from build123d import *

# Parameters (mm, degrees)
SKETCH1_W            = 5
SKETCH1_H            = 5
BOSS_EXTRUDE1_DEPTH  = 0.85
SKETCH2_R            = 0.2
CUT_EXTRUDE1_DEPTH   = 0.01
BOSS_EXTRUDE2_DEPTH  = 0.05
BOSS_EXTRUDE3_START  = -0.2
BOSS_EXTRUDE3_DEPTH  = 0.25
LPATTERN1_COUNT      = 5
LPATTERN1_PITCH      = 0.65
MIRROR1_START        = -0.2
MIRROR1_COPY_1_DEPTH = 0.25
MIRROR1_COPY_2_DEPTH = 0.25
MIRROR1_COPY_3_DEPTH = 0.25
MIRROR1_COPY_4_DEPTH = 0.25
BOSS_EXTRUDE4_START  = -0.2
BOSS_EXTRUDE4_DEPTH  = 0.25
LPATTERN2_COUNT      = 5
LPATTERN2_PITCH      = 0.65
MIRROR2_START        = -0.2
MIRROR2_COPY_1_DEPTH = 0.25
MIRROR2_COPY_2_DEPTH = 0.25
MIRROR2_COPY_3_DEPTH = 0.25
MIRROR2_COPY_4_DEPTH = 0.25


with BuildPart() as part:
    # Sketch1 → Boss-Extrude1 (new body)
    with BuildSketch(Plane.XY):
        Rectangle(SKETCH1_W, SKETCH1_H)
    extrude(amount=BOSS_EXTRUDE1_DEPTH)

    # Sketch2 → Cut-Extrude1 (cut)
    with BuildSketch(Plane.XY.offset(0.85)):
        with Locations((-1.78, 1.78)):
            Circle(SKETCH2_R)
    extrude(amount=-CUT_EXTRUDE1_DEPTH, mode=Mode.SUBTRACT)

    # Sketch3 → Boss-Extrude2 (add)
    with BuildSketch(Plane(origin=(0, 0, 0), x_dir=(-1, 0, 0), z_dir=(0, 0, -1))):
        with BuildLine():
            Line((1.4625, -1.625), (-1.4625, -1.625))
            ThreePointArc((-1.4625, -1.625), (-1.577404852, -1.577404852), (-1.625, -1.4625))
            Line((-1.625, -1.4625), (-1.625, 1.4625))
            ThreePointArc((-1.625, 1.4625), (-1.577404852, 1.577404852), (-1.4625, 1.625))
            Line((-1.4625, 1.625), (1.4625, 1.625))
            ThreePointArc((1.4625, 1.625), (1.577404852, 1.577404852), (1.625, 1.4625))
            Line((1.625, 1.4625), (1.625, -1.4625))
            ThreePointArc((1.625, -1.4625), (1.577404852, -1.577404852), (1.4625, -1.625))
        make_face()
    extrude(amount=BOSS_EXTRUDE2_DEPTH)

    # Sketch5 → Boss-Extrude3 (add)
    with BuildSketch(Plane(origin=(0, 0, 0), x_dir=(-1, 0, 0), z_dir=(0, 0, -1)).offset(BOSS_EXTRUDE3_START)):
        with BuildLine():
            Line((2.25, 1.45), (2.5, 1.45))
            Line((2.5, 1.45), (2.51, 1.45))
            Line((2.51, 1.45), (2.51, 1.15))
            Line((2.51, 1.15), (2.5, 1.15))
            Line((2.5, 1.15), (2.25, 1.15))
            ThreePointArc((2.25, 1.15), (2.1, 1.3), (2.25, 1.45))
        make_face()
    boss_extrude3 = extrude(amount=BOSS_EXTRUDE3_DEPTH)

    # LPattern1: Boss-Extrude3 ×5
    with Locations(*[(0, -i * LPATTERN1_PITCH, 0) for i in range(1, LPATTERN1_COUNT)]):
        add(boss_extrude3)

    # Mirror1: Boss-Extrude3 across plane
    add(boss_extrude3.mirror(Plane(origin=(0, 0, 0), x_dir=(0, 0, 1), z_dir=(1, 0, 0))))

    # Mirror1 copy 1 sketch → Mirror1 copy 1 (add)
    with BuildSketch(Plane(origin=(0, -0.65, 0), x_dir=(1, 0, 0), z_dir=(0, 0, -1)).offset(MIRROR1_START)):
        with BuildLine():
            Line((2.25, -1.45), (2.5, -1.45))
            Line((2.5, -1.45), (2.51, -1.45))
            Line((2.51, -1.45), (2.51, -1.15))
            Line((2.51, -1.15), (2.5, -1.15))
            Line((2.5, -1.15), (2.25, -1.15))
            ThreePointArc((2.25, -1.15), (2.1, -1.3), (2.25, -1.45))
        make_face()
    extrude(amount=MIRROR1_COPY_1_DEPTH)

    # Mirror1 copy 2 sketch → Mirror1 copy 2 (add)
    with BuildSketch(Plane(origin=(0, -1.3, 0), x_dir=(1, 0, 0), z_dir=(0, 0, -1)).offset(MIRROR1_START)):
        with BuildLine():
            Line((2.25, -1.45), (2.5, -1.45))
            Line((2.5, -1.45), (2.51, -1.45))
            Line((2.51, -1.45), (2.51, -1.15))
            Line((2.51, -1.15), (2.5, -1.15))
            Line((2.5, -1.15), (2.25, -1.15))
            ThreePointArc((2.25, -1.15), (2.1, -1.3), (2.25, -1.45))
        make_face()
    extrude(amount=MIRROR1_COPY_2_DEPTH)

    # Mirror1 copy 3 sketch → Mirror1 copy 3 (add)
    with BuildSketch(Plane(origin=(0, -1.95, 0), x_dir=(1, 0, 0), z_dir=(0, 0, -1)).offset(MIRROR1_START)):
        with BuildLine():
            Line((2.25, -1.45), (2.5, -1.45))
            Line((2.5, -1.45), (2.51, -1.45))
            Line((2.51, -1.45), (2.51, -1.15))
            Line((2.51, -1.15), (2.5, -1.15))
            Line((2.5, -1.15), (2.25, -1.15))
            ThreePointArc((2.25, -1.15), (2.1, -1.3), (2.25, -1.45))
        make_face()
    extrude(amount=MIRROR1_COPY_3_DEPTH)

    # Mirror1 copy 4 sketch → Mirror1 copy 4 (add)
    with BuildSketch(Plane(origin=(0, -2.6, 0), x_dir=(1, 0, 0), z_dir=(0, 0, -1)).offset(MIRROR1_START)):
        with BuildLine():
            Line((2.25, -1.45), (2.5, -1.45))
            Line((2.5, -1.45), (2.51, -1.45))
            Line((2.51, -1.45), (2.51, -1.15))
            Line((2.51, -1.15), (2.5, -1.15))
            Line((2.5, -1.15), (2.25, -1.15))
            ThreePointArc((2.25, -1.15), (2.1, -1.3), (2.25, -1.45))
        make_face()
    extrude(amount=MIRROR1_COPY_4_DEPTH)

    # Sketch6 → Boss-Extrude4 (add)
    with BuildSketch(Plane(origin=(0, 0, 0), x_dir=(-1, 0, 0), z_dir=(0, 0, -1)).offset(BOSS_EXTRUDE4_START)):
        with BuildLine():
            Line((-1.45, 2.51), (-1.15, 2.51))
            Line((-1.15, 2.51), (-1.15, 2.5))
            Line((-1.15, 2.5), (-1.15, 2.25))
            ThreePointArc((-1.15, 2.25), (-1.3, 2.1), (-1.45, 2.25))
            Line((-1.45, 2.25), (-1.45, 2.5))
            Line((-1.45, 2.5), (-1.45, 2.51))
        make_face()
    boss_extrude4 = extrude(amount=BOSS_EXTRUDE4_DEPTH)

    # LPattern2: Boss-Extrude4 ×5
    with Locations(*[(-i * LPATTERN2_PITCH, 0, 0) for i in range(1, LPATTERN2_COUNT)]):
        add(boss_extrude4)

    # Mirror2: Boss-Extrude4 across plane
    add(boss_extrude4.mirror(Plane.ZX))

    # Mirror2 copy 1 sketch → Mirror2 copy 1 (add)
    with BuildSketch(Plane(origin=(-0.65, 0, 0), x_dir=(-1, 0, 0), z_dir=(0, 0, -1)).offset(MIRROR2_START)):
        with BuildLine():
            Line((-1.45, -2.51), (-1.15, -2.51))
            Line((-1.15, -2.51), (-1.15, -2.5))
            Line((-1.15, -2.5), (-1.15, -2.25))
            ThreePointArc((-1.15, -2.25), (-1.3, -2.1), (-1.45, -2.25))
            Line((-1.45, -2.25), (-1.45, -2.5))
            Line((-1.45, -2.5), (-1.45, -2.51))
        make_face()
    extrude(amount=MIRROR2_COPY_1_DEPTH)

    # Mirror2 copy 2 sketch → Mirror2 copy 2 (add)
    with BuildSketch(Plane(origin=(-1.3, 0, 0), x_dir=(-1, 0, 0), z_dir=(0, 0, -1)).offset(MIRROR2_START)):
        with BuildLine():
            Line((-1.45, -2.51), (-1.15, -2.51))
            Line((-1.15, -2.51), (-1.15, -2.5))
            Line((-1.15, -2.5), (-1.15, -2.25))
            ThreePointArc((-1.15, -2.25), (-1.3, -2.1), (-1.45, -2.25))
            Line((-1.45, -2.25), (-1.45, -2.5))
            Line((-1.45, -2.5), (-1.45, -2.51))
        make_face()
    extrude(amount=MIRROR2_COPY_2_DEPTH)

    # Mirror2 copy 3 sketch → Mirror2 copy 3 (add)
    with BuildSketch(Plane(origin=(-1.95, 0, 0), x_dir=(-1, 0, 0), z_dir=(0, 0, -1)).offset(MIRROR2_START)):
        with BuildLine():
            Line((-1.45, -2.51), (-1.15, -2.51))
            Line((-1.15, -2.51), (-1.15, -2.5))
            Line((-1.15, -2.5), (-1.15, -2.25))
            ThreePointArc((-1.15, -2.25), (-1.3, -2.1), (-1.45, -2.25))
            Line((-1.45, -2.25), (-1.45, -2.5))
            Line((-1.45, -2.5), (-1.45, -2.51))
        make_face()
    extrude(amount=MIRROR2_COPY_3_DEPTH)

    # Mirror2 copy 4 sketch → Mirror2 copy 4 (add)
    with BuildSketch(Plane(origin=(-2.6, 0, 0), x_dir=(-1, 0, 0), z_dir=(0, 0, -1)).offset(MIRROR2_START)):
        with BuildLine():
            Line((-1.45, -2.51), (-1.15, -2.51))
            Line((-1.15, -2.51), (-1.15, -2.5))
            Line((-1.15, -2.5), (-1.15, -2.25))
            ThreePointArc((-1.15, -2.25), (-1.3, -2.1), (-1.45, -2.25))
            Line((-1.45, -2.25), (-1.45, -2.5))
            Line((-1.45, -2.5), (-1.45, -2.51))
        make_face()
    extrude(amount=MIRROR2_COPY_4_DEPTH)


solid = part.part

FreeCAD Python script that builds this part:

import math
import FreeCAD as App
import Part
import Sketcher


def add_polygon(sketch, points):
    """Adds a closed chain of lines whose ends are joined by coincident constraints."""
    first, n = sketch.GeometryCount, len(points)
    for a, b in zip(points, points[1:] + points[:1]):
        sketch.addGeometry(Part.LineSegment(App.Vector(*a, 0), App.Vector(*b, 0)), False)
    for i in range(n):
        sketch.addConstraint(Sketcher.Constraint("Coincident", first + i, 2, first + (i + 1) % n, 1))

doc = App.newDocument("Part")
body = doc.addObject("PartDesign::Body", "Body")

# Sketch on XY plane
sketch1 = body.newObject("Sketcher::SketchObject", "Sketch")
sketch1.AttachmentSupport = (doc.getObject("XY_Plane"), [""])
sketch1.MapMode = "FlatFace"
add_polygon(sketch1, [(-2, 2), (-2, -2), (2, -2), (2, 2)])  # lines 0-3
sketch1.addConstraint(Sketcher.Constraint("Vertical", 0))
sketch1.addConstraint(Sketcher.Constraint("Horizontal", 1))
sketch1.addConstraint(Sketcher.Constraint("Vertical", 2))
sketch1.addConstraint(Sketcher.Constraint("Horizontal", 3))
sketch1.addConstraint(Sketcher.Constraint("Symmetric", 0, 2, 2, 2, -1, 1))
sketch1.addConstraint(Sketcher.Constraint("Equal", 3, 0))
sketch1.addConstraint(Sketcher.Constraint("DistanceX", 1, 1, 1, 2, 5.0))
pad1 = body.newObject("PartDesign::Pad", "Pad")
pad1.Profile = sketch1
pad1.Length = 0.85

# Sketch on XY plane
sketch2 = body.newObject("Sketcher::SketchObject", "Sketch001")
sketch2.AttachmentSupport = (doc.getObject("XY_Plane"), [""])
sketch2.MapMode = "FlatFace"
sketch2.AttachmentOffset = App.Placement(App.Vector(0, 0, 0.85), App.Rotation())
sketch2.addGeometry(Part.Circle(App.Vector(-1.78, 1.78, 0), App.Vector(0, 0, 1), 0.2), False)
sketch2.addConstraint(Sketcher.Constraint("Diameter", 0, 0.4))
sketch2.addConstraint(Sketcher.Constraint("DistanceX", 0, 3, -1, 1, 1.78))
sketch2.addConstraint(Sketcher.Constraint("DistanceY", -1, 1, 0, 3, 1.78))
pocket1 = body.newObject("PartDesign::Pocket", "Pocket")
pocket1.Profile = sketch2
pocket1.Length = 0.01

# Sketch on XY plane
sketch3 = body.newObject("Sketcher::SketchObject", "Sketch002")
sketch3.AttachmentSupport = (doc.getObject("XY_Plane"), [""])
sketch3.MapMode = "FlatFace"
sketch3.addGeometry(Part.LineSegment(App.Vector(1.46, -1.62, 0), App.Vector(-1.46, -1.62, 0)), False)
sketch3.addGeometry(Part.ArcOfCircle(Part.Circle(App.Vector(-1.46, -1.46, 0), App.Vector(0, 0, 1), 0.16), math.radians(180), math.radians(270)), False)
sketch3.addGeometry(Part.LineSegment(App.Vector(-1.62, -1.46, 0), App.Vector(-1.62, 1.46, 0)), False)
sketch3.addGeometry(Part.ArcOfCircle(Part.Circle(App.Vector(-1.46, 1.46, 0), App.Vector(0, 0, 1), 0.16), math.radians(90), math.radians(180)), False)
sketch3.addGeometry(Part.LineSegment(App.Vector(-1.46, 1.62, 0), App.Vector(1.46, 1.62, 0)), False)
sketch3.addGeometry(Part.ArcOfCircle(Part.Circle(App.Vector(1.46, 1.46, 0), App.Vector(0, 0, 1), 0.16), math.radians(0), math.radians(90)), False)
sketch3.addGeometry(Part.LineSegment(App.Vector(1.62, 1.46, 0), App.Vector(1.62, -1.46, 0)), False)
sketch3.addGeometry(Part.ArcOfCircle(Part.Circle(App.Vector(1.46, -1.46, 0), App.Vector(0, 0, 1), 0.16), math.radians(-90), math.radians(0)), False)
sketch3.addConstraint(Sketcher.Constraint("Tangent", 0, 2, 1, 2))
sketch3.addConstraint(Sketcher.Constraint("Tangent", 1, 1, 2, 1))
sketch3.addConstraint(Sketcher.Constraint("Tangent", 2, 2, 3, 2))
sketch3.addConstraint(Sketcher.Constraint("Tangent", 3, 1, 4, 1))
sketch3.addConstraint(Sketcher.Constraint("Tangent", 4, 2, 5, 2))
sketch3.addConstraint(Sketcher.Constraint("Tangent", 5, 1, 6, 1))
sketch3.addConstraint(Sketcher.Constraint("Tangent", 6, 2, 7, 2))
sketch3.addConstraint(Sketcher.Constraint("Tangent", 7, 1, 0, 1))
sketch3.addConstraint(Sketcher.Constraint("Horizontal", 0))
sketch3.addConstraint(Sketcher.Constraint("Vertical", 2))
sketch3.addConstraint(Sketcher.Constraint("Horizontal", 4))
sketch3.addConstraint(Sketcher.Constraint("Vertical", 6))
sketch3.addConstraint(Sketcher.Constraint("Equal", 1, 3))
sketch3.addConstraint(Sketcher.Constraint("Equal", 3, 5))
sketch3.addConstraint(Sketcher.Constraint("Equal", 5, 7))
sketch3.addConstraint(Sketcher.Constraint("Symmetric", 1, 3, 5, 3, -1, 1))
sketch3.addConstraint(Sketcher.Constraint("Equal", 4, 2))
sketch3.addConstraint(Sketcher.Constraint("Radius", 1, 0.1625))
sketch3.addConstraint(Sketcher.Constraint("DistanceX", 0, 2, 0, 1, 2.925))
pad2 = body.newObject("PartDesign::Pad", "Pad001")
pad2.Profile = sketch3
pad2.Length = 0.05
pad2.Reversed = True

# Sketch on XY plane
sketch4 = body.newObject("Sketcher::SketchObject", "Sketch003")
sketch4.AttachmentSupport = (doc.getObject("XY_Plane"), [""])
sketch4.MapMode = "FlatFace"
sketch4.AttachmentOffset = App.Placement(App.Vector(0, 0, 0.2), App.Rotation())
sketch4.addGeometry(Part.LineSegment(App.Vector(-2.51, 1.45, 0), App.Vector(-2.25, 1.45, 0)), False)
sketch4.addGeometry(Part.ArcOfCircle(Part.Circle(App.Vector(-2.25, 1.3, 0), App.Vector(0, 0, 1), 0.15), math.radians(-90), math.radians(90)), False)
sketch4.addGeometry(Part.LineSegment(App.Vector(-2.25, 1.15, 0), App.Vector(-2.51, 1.15, 0)), False)
sketch4.addGeometry(Part.LineSegment(App.Vector(-2.51, 1.15, 0), App.Vector(-2.51, 1.45, 0)), False)
sketch4.addConstraint(Sketcher.Constraint("Tangent", 0, 2, 1, 2))
sketch4.addConstraint(Sketcher.Constraint("Tangent", 1, 1, 2, 1))
sketch4.addConstraint(Sketcher.Constraint("Coincident", 2, 2, 3, 1))
sketch4.addConstraint(Sketcher.Constraint("Coincident", 3, 2, 0, 1))
sketch4.addConstraint(Sketcher.Constraint("Horizontal", 0))
sketch4.addConstraint(Sketcher.Constraint("Horizontal", 2))
sketch4.addConstraint(Sketcher.Constraint("Vertical", 3))
sketch4.addConstraint(Sketcher.Constraint("Radius", 1, 0.15))
sketch4.addConstraint(Sketcher.Constraint("DistanceX", 0, 1, 0, 2, 0.26))
sketch4.addConstraint(Sketcher.Constraint("DistanceY", -1, 1, 1, 3, 1.3))
sketch4.addConstraint(Sketcher.Constraint("DistanceX", 1, 3, -1, 1, 2.25))
pad3 = body.newObject("PartDesign::Pad", "Pad002")
pad3.Profile = sketch4
pad3.Length = 0.25
pad3.Reversed = True
doc.recompute()

linearpattern = body.newObject("PartDesign::LinearPattern", "LinearPattern")
linearpattern.Originals = [pad3]
linearpattern.Direction = (doc.getObject("Y_Axis"), [""])
linearpattern.Mode = "offset"
linearpattern.Offset = 0.65
linearpattern.Occurrences = 5
linearpattern.Reversed = True
body.Tip = linearpattern
doc.recompute()

mirrored = body.newObject("PartDesign::Mirrored", "Mirrored")
mirrored.Originals = [pad3]
mirrored.MirrorPlane = (doc.getObject("YZ_Plane"), [""])
body.Tip = mirrored

# Sketch on XY plane
sketch5 = body.newObject("Sketcher::SketchObject", "Sketch004")
sketch5.AttachmentSupport = (doc.getObject("XY_Plane"), [""])
sketch5.MapMode = "FlatFace"
sketch5.AttachmentOffset = App.Placement(App.Vector(0, 0, 0.2), App.Rotation())
sketch5.addGeometry(Part.LineSegment(App.Vector(2.25, 0.8, 0), App.Vector(2.51, 0.8, 0)), False)
sketch5.addGeometry(Part.LineSegment(App.Vector(2.51, 0.8, 0), App.Vector(2.51, 0.5, 0)), False)
sketch5.addGeometry(Part.LineSegment(App.Vector(2.51, 0.5, 0), App.Vector(2.25, 0.5, 0)), False)
sketch5.addGeometry(Part.ArcOfCircle(Part.Circle(App.Vector(2.25, 0.65, 0), App.Vector(0, 0, 1), 0.15), math.radians(90), math.radians(270)), False)
sketch5.addConstraint(Sketcher.Constraint("Coincident", 0, 2, 1, 1))
sketch5.addConstraint(Sketcher.Constraint("Coincident", 1, 2, 2, 1))
sketch5.addConstraint(Sketcher.Constraint("Tangent", 2, 2, 3, 2))
sketch5.addConstraint(Sketcher.Constraint("Tangent", 3, 1, 0, 1))
sketch5.addConstraint(Sketcher.Constraint("Horizontal", 0))
sketch5.addConstraint(Sketcher.Constraint("Vertical", 1))
sketch5.addConstraint(Sketcher.Constraint("Horizontal", 2))
sketch5.addConstraint(Sketcher.Constraint("Radius", 3, 0.15))
sketch5.addConstraint(Sketcher.Constraint("DistanceX", 0, 1, 0, 2, 0.26))
sketch5.addConstraint(Sketcher.Constraint("DistanceY", -1, 1, 0, 2, 0.8))
sketch5.addConstraint(Sketcher.Constraint("DistanceX", -1, 1, 3, 3, 2.25))
pad4 = body.newObject("PartDesign::Pad", "Pad003")
pad4.Profile = sketch5
pad4.Length = 0.25
pad4.Reversed = True

# Sketch on XY plane
sketch6 = body.newObject("Sketcher::SketchObject", "Sketch005")
sketch6.AttachmentSupport = (doc.getObject("XY_Plane"), [""])
sketch6.MapMode = "FlatFace"
sketch6.AttachmentOffset = App.Placement(App.Vector(0, 0, 0.2), App.Rotation())
sketch6.addGeometry(Part.LineSegment(App.Vector(2.25, 0.15, 0), App.Vector(2.51, 0.15, 0)), False)
sketch6.addGeometry(Part.LineSegment(App.Vector(2.51, 0.15, 0), App.Vector(2.51, -0.15, 0)), False)
sketch6.addGeometry(Part.LineSegment(App.Vector(2.51, -0.15, 0), App.Vector(2.25, -0.15, 0)), False)
sketch6.addGeometry(Part.ArcOfCircle(Part.Circle(App.Vector(2.25, 0, 0), App.Vector(0, 0, 1), 0.15), math.radians(90), math.radians(270)), False)
sketch6.addConstraint(Sketcher.Constraint("Coincident", 0, 2, 1, 1))
sketch6.addConstraint(Sketcher.Constraint("Coincident", 1, 2, 2, 1))
sketch6.addConstraint(Sketcher.Constraint("Tangent", 2, 2, 3, 2))
sketch6.addConstraint(Sketcher.Constraint("Tangent", 3, 1, 0, 1))
sketch6.addConstraint(Sketcher.Constraint("Horizontal", 0))
sketch6.addConstraint(Sketcher.Constraint("Vertical", 1))
sketch6.addConstraint(Sketcher.Constraint("Horizontal", 2))
sketch6.addConstraint(Sketcher.Constraint("PointOnObject", 3, 3, -1))
sketch6.addConstraint(Sketcher.Constraint("Radius", 3, 0.15))
sketch6.addConstraint(Sketcher.Constraint("DistanceX", 0, 1, 0, 2, 0.26))
sketch6.addConstraint(Sketcher.Constraint("DistanceX", -1, 1, 3, 3, 2.25))
pad5 = body.newObject("PartDesign::Pad", "Pad004")
pad5.Profile = sketch6
pad5.Length = 0.25
pad5.Reversed = True

# Sketch on XY plane
sketch7 = body.newObject("Sketcher::SketchObject", "Sketch006")
sketch7.AttachmentSupport = (doc.getObject("XY_Plane"), [""])
sketch7.MapMode = "FlatFace"
sketch7.AttachmentOffset = App.Placement(App.Vector(0, 0, 0.2), App.Rotation())
sketch7.addGeometry(Part.LineSegment(App.Vector(2.25, -0.5, 0), App.Vector(2.51, -0.5, 0)), False)
sketch7.addGeometry(Part.LineSegment(App.Vector(2.51, -0.5, 0), App.Vector(2.51, -0.8, 0)), False)
sketch7.addGeometry(Part.LineSegment(App.Vector(2.51, -0.8, 0), App.Vector(2.25, -0.8, 0)), False)
sketch7.addGeometry(Part.ArcOfCircle(Part.Circle(App.Vector(2.25, -0.65, 0), App.Vector(0, 0, 1), 0.15), math.radians(90), math.radians(270)), False)
sketch7.addConstraint(Sketcher.Constraint("Coincident", 0, 2, 1, 1))
sketch7.addConstraint(Sketcher.Constraint("Coincident", 1, 2, 2, 1))
sketch7.addConstraint(Sketcher.Constraint("Tangent", 2, 2, 3, 2))
sketch7.addConstraint(Sketcher.Constraint("Tangent", 3, 1, 0, 1))
sketch7.addConstraint(Sketcher.Constraint("Horizontal", 0))
sketch7.addConstraint(Sketcher.Constraint("Vertical", 1))
sketch7.addConstraint(Sketcher.Constraint("Horizontal", 2))
sketch7.addConstraint(Sketcher.Constraint("Radius", 3, 0.15))
sketch7.addConstraint(Sketcher.Constraint("DistanceX", 0, 1, 0, 2, 0.26))
sketch7.addConstraint(Sketcher.Constraint("DistanceY", 0, 2, -1, 1, 0.5))
sketch7.addConstraint(Sketcher.Constraint("DistanceX", -1, 1, 3, 3, 2.25))
pad6 = body.newObject("PartDesign::Pad", "Pad005")
pad6.Profile = sketch7
pad6.Length = 0.25
pad6.Reversed = True

# Sketch on XY plane
sketch8 = body.newObject("Sketcher::SketchObject", "Sketch007")
sketch8.AttachmentSupport = (doc.getObject("XY_Plane"), [""])
sketch8.MapMode = "FlatFace"
sketch8.AttachmentOffset = App.Placement(App.Vector(0, 0, 0.2), App.Rotation())
sketch8.addGeometry(Part.LineSegment(App.Vector(2.25, -1.15, 0), App.Vector(2.51, -1.15, 0)), False)
sketch8.addGeometry(Part.LineSegment(App.Vector(2.51, -1.15, 0), App.Vector(2.51, -1.45, 0)), False)
sketch8.addGeometry(Part.LineSegment(App.Vector(2.51, -1.45, 0), App.Vector(2.25, -1.45, 0)), False)
sketch8.addGeometry(Part.ArcOfCircle(Part.Circle(App.Vector(2.25, -1.3, 0), App.Vector(0, 0, 1), 0.15), math.radians(90), math.radians(270)), False)
sketch8.addConstraint(Sketcher.Constraint("Coincident", 0, 2, 1, 1))
sketch8.addConstraint(Sketcher.Constraint("Coincident", 1, 2, 2, 1))
sketch8.addConstraint(Sketcher.Constraint("Tangent", 2, 2, 3, 2))
sketch8.addConstraint(Sketcher.Constraint("Tangent", 3, 1, 0, 1))
sketch8.addConstraint(Sketcher.Constraint("Horizontal", 0))
sketch8.addConstraint(Sketcher.Constraint("Vertical", 1))
sketch8.addConstraint(Sketcher.Constraint("Horizontal", 2))
sketch8.addConstraint(Sketcher.Constraint("Radius", 3, 0.15))
sketch8.addConstraint(Sketcher.Constraint("DistanceX", 0, 1, 0, 2, 0.26))
sketch8.addConstraint(Sketcher.Constraint("DistanceY", 3, 3, -1, 1, 1.3))
sketch8.addConstraint(Sketcher.Constraint("DistanceX", -1, 1, 3, 3, 2.25))
pad7 = body.newObject("PartDesign::Pad", "Pad006")
pad7.Profile = sketch8
pad7.Length = 0.25
pad7.Reversed = True

# Sketch on XY plane
sketch9 = body.newObject("Sketcher::SketchObject", "Sketch008")
sketch9.AttachmentSupport = (doc.getObject("XY_Plane"), [""])
sketch9.MapMode = "FlatFace"
sketch9.AttachmentOffset = App.Placement(App.Vector(0, 0, 0.2), App.Rotation())
sketch9.addGeometry(Part.LineSegment(App.Vector(1.15, 2.51, 0), App.Vector(1.45, 2.51, 0)), False)
sketch9.addGeometry(Part.LineSegment(App.Vector(1.45, 2.51, 0), App.Vector(1.45, 2.25, 0)), False)
sketch9.addGeometry(Part.ArcOfCircle(Part.Circle(App.Vector(1.3, 2.25, 0), App.Vector(0, 0, 1), 0.15), math.radians(180), math.radians(360)), False)
sketch9.addGeometry(Part.LineSegment(App.Vector(1.15, 2.25, 0), App.Vector(1.15, 2.51, 0)), False)
sketch9.addConstraint(Sketcher.Constraint("Coincident", 0, 2, 1, 1))
sketch9.addConstraint(Sketcher.Constraint("Tangent", 1, 2, 2, 2))
sketch9.addConstraint(Sketcher.Constraint("Tangent", 2, 1, 3, 1))
sketch9.addConstraint(Sketcher.Constraint("Coincident", 3, 2, 0, 1))
sketch9.addConstraint(Sketcher.Constraint("Horizontal", 0))
sketch9.addConstraint(Sketcher.Constraint("Vertical", 1))
sketch9.addConstraint(Sketcher.Constraint("Vertical", 3))
sketch9.addConstraint(Sketcher.Constraint("Radius", 2, 0.15))
sketch9.addConstraint(Sketcher.Constraint("DistanceY", 1, 2, 1, 1, 0.26))
sketch9.addConstraint(Sketcher.Constraint("DistanceX", -1, 1, 2, 3, 1.3))
sketch9.addConstraint(Sketcher.Constraint("DistanceY", -1, 1, 2, 3, 2.25))
pad8 = body.newObject("PartDesign::Pad", "Pad007")
pad8.Profile = sketch9
pad8.Length = 0.25
pad8.Reversed = True
doc.recompute()

linearpattern2 = body.newObject("PartDesign::LinearPattern", "LinearPattern001")
linearpattern2.Originals = [pad8]
linearpattern2.Direction = (doc.getObject("X_Axis"), [""])
linearpattern2.Mode = "offset"
linearpattern2.Offset = 0.65
linearpattern2.Occurrences = 5
linearpattern2.Reversed = True
body.Tip = linearpattern2
doc.recompute()

mirrored2 = body.newObject("PartDesign::Mirrored", "Mirrored001")
mirrored2.Originals = [pad8]
mirrored2.MirrorPlane = (doc.getObject("XZ_Plane"), [""])
body.Tip = mirrored2

# Sketch on XY plane
sketch10 = body.newObject("Sketcher::SketchObject", "Sketch009")
sketch10.AttachmentSupport = (doc.getObject("XY_Plane"), [""])
sketch10.MapMode = "FlatFace"
sketch10.AttachmentOffset = App.Placement(App.Vector(0, 0, 0.2), App.Rotation())
sketch10.addGeometry(Part.LineSegment(App.Vector(0.8, -2.51, 0), App.Vector(0.5, -2.51, 0)), False)
sketch10.addGeometry(Part.LineSegment(App.Vector(0.5, -2.51, 0), App.Vector(0.5, -2.25, 0)), False)
sketch10.addGeometry(Part.ArcOfCircle(Part.Circle(App.Vector(0.65, -2.25, 0), App.Vector(0, 0, 1), 0.15), math.radians(0), math.radians(180)), False)
sketch10.addGeometry(Part.LineSegment(App.Vector(0.8, -2.25, 0), App.Vector(0.8, -2.51, 0)), False)
sketch10.addConstraint(Sketcher.Constraint("Coincident", 0, 2, 1, 1))
sketch10.addConstraint(Sketcher.Constraint("Tangent", 1, 2, 2, 2))
sketch10.addConstraint(Sketcher.Constraint("Tangent", 2, 1, 3, 1))
sketch10.addConstraint(Sketcher.Constraint("Coincident", 3, 2, 0, 1))
sketch10.addConstraint(Sketcher.Constraint("Horizontal", 0))
sketch10.addConstraint(Sketcher.Constraint("Vertical", 1))
sketch10.addConstraint(Sketcher.Constraint("Vertical", 3))
sketch10.addConstraint(Sketcher.Constraint("Radius", 2, 0.15))
sketch10.addConstraint(Sketcher.Constraint("DistanceY", 1, 1, 1, 2, 0.26))
sketch10.addConstraint(Sketcher.Constraint("DistanceX", -1, 1, 0, 2, 0.5))
sketch10.addConstraint(Sketcher.Constraint("DistanceY", 2, 3, -1, 1, 2.25))
pad9 = body.newObject("PartDesign::Pad", "Pad008")
pad9.Profile = sketch10
pad9.Length = 0.25
pad9.Reversed = True

# Sketch on XY plane
sketch11 = body.newObject("Sketcher::SketchObject", "Sketch010")
sketch11.AttachmentSupport = (doc.getObject("XY_Plane"), [""])
sketch11.MapMode = "FlatFace"
sketch11.AttachmentOffset = App.Placement(App.Vector(0, 0, 0.2), App.Rotation())
sketch11.addGeometry(Part.LineSegment(App.Vector(0.15, -2.51, 0), App.Vector(-0.15, -2.51, 0)), False)
sketch11.addGeometry(Part.LineSegment(App.Vector(-0.15, -2.51, 0), App.Vector(-0.15, -2.25, 0)), False)
sketch11.addGeometry(Part.ArcOfCircle(Part.Circle(App.Vector(0, -2.25, 0), App.Vector(0, 0, 1), 0.15), math.radians(0), math.radians(180)), False)
sketch11.addGeometry(Part.LineSegment(App.Vector(0.15, -2.25, 0), App.Vector(0.15, -2.51, 0)), False)
sketch11.addConstraint(Sketcher.Constraint("Coincident", 0, 2, 1, 1))
sketch11.addConstraint(Sketcher.Constraint("Tangent", 1, 2, 2, 2))
sketch11.addConstraint(Sketcher.Constraint("Tangent", 2, 1, 3, 1))
sketch11.addConstraint(Sketcher.Constraint("Coincident", 3, 2, 0, 1))
sketch11.addConstraint(Sketcher.Constraint("Horizontal", 0))
sketch11.addConstraint(Sketcher.Constraint("Vertical", 1))
sketch11.addConstraint(Sketcher.Constraint("Vertical", 3))
sketch11.addConstraint(Sketcher.Constraint("PointOnObject", 2, 3, -2))
sketch11.addConstraint(Sketcher.Constraint("Radius", 2, 0.15))
sketch11.addConstraint(Sketcher.Constraint("DistanceY", 1, 1, 1, 2, 0.26))
sketch11.addConstraint(Sketcher.Constraint("DistanceY", 2, 3, -1, 1, 2.25))
pad10 = body.newObject("PartDesign::Pad", "Pad009")
pad10.Profile = sketch11
pad10.Length = 0.25
pad10.Reversed = True

# Sketch on XY plane
sketch12 = body.newObject("Sketcher::SketchObject", "Sketch011")
sketch12.AttachmentSupport = (doc.getObject("XY_Plane"), [""])
sketch12.MapMode = "FlatFace"
sketch12.AttachmentOffset = App.Placement(App.Vector(0, 0, 0.2), App.Rotation())
sketch12.addGeometry(Part.LineSegment(App.Vector(-0.5, -2.51, 0), App.Vector(-0.8, -2.51, 0)), False)
sketch12.addGeometry(Part.LineSegment(App.Vector(-0.8, -2.51, 0), App.Vector(-0.8, -2.25, 0)), False)
sketch12.addGeometry(Part.ArcOfCircle(Part.Circle(App.Vector(-0.65, -2.25, 0), App.Vector(0, 0, 1), 0.15), math.radians(0), math.radians(180)), False)
sketch12.addGeometry(Part.LineSegment(App.Vector(-0.5, -2.25, 0), App.Vector(-0.5, -2.51, 0)), False)
sketch12.addConstraint(Sketcher.Constraint("Coincident", 0, 2, 1, 1))
sketch12.addConstraint(Sketcher.Constraint("Tangent", 1, 2, 2, 2))
sketch12.addConstraint(Sketcher.Constraint("Tangent", 2, 1, 3, 1))
sketch12.addConstraint(Sketcher.Constraint("Coincident", 3, 2, 0, 1))
sketch12.addConstraint(Sketcher.Constraint("Horizontal", 0))
sketch12.addConstraint(Sketcher.Constraint("Vertical", 1))
sketch12.addConstraint(Sketcher.Constraint("Vertical", 3))
sketch12.addConstraint(Sketcher.Constraint("Radius", 2, 0.15))
sketch12.addConstraint(Sketcher.Constraint("DistanceY", 1, 1, 1, 2, 0.26))
sketch12.addConstraint(Sketcher.Constraint("DistanceX", 0, 2, -1, 1, 0.8))
sketch12.addConstraint(Sketcher.Constraint("DistanceY", 2, 3, -1, 1, 2.25))
pad11 = body.newObject("PartDesign::Pad", "Pad010")
pad11.Profile = sketch12
pad11.Length = 0.25
pad11.Reversed = True

# Sketch on XY plane
sketch13 = body.newObject("Sketcher::SketchObject", "Sketch012")
sketch13.AttachmentSupport = (doc.getObject("XY_Plane"), [""])
sketch13.MapMode = "FlatFace"
sketch13.AttachmentOffset = App.Placement(App.Vector(0, 0, 0.2), App.Rotation())
sketch13.addGeometry(Part.LineSegment(App.Vector(-1.15, -2.51, 0), App.Vector(-1.45, -2.51, 0)), False)
sketch13.addGeometry(Part.LineSegment(App.Vector(-1.45, -2.51, 0), App.Vector(-1.45, -2.25, 0)), False)
sketch13.addGeometry(Part.ArcOfCircle(Part.Circle(App.Vector(-1.3, -2.25, 0), App.Vector(0, 0, 1), 0.15), math.radians(0), math.radians(180)), False)
sketch13.addGeometry(Part.LineSegment(App.Vector(-1.15, -2.25, 0), App.Vector(-1.15, -2.51, 0)), False)
sketch13.addConstraint(Sketcher.Constraint("Coincident", 0, 2, 1, 1))
sketch13.addConstraint(Sketcher.Constraint("Tangent", 1, 2, 2, 2))
sketch13.addConstraint(Sketcher.Constraint("Tangent", 2, 1, 3, 1))
sketch13.addConstraint(Sketcher.Constraint("Coincident", 3, 2, 0, 1))
sketch13.addConstraint(Sketcher.Constraint("Horizontal", 0))
sketch13.addConstraint(Sketcher.Constraint("Vertical", 1))
sketch13.addConstraint(Sketcher.Constraint("Vertical", 3))
sketch13.addConstraint(Sketcher.Constraint("Radius", 2, 0.15))
sketch13.addConstraint(Sketcher.Constraint("DistanceY", 1, 1, 1, 2, 0.26))
sketch13.addConstraint(Sketcher.Constraint("DistanceX", 2, 3, -1, 1, 1.3))
sketch13.addConstraint(Sketcher.Constraint("DistanceY", 2, 3, -1, 1, 2.25))
pad12 = body.newObject("PartDesign::Pad", "Pad011")
pad12.Profile = sketch13
pad12.Length = 0.25
pad12.Reversed = True

doc.recompute()
